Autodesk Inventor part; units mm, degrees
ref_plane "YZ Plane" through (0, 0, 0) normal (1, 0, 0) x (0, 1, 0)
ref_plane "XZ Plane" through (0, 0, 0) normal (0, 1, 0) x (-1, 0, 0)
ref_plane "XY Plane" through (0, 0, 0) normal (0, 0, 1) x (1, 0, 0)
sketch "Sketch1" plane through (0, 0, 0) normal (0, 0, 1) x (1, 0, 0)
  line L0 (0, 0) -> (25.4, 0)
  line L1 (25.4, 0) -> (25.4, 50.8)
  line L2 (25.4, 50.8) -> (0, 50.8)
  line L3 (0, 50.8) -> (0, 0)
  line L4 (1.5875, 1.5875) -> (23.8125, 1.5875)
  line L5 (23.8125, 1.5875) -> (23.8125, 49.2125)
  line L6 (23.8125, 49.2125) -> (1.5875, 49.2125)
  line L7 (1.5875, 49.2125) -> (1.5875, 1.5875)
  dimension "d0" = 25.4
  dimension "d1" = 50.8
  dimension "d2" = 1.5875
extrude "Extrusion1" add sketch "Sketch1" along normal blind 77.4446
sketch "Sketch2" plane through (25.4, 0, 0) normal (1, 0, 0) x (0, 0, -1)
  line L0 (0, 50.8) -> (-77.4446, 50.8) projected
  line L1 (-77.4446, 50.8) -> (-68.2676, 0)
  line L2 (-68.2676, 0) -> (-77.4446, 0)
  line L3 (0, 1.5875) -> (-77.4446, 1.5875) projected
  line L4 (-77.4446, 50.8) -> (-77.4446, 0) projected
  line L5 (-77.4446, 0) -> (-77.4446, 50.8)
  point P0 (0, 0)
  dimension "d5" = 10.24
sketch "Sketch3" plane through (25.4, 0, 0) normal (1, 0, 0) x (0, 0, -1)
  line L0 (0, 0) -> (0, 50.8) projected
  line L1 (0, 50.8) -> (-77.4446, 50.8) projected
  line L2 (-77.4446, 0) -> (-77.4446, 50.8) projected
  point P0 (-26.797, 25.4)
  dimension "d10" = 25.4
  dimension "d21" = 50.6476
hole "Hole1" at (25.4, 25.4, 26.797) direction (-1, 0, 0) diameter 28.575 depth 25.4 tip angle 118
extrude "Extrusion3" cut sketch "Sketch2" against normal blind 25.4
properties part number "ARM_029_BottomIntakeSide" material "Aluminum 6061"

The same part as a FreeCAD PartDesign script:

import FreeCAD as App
import Part
import Sketcher
from FreeCAD import Vector
Q = App.Units.Quantity

doc = App.newDocument("Part")
body = doc.addObject("PartDesign::Body", "Body")

sketch1 = body.newObject("Sketcher::SketchObject", "Sketch")
sketch1.AttachmentSupport = (doc.getObject("XY_Plane"), [""])
sketch1.MapMode = "FlatFace"
sketch1.addGeometry([
    Part.LineSegment(Vector(0, 51, 0), Vector(0, 0, 0)),
    Part.LineSegment(Vector(0, 0, 0), Vector(25, 0, 0)),
    Part.LineSegment(Vector(25, 0, 0), Vector(25, 51, 0)),
    Part.LineSegment(Vector(25, 51, 0), Vector(0, 51, 0)),
    Part.LineSegment(Vector(24, 2, 0), Vector(2, 2, 0)),
    Part.LineSegment(Vector(2, 2, 0), Vector(2, 49, 0)),
    Part.LineSegment(Vector(2, 49, 0), Vector(24, 49, 0)),
    Part.LineSegment(Vector(24, 49, 0), Vector(24, 2, 0)),
], False)
sketch1.addConstraint([
    Sketcher.Constraint("Coincident", 0, 2, 1, 1),
    Sketcher.Constraint("Coincident", 1, 2, 2, 1),
    Sketcher.Constraint("Coincident", 2, 2, 3, 1),
    Sketcher.Constraint("Coincident", 3, 2, 0, 1),
    Sketcher.Constraint("Coincident", 4, 2, 5, 1),
    Sketcher.Constraint("Coincident", 5, 2, 6, 1),
    Sketcher.Constraint("Coincident", 6, 2, 7, 1),
    Sketcher.Constraint("Coincident", 7, 2, 4, 1),
    Sketcher.Constraint("Vertical", 0),
    Sketcher.Constraint("Horizontal", 1),
    Sketcher.Constraint("Vertical", 2),
    Sketcher.Constraint("Horizontal", 3),
    Sketcher.Constraint("Horizontal", 4),
    Sketcher.Constraint("Vertical", 5),
    Sketcher.Constraint("Horizontal", 6),
    Sketcher.Constraint("Vertical", 7),
    Sketcher.Constraint("Coincident", 0, 2, -1, 1),
    Sketcher.Constraint("DistanceX", 1, 1, 1, 2, Q("1 in")),
    Sketcher.Constraint("DistanceY", 0, 2, 0, 1, Q("2 in")),
    Sketcher.Constraint("DistanceX", -1, 1, 4, 2, Q("0.0625 in")),
    Sketcher.Constraint("DistanceY", -1, 1, 4, 2, Q("0.0625 in")),
    Sketcher.Constraint("DistanceY", 5, 2, 3, 2, Q("0.0625 in")),
    Sketcher.Constraint("DistanceX", 6, 2, 2, 2, Q("0.0625 in")),
])
pad1 = body.newObject("PartDesign::Pad", "Pad")
pad1.Profile = sketch1
pad1.Length = Q("3.049 in")

sketch2 = body.newObject("Sketcher::SketchObject", "Sketch001")
sketch2.AttachmentSupport = (doc.getObject("YZ_Plane"), [""])
sketch2.MapMode = "FlatFace"
sketch2.AttachmentOffset = App.Placement(Vector(0, 0, 1 * 25.4), App.Rotation())
sketch2.addGeometry(Part.Circle(Vector(25, 27, 0), Vector(0, 0, 1), 14), False)
sketch2.addConstraint([
    Sketcher.Constraint("Diameter", 0, Q("1.125 in")),
    Sketcher.Constraint("DistanceX", -1, 1, 0, 3, Q("1 in")),
    Sketcher.Constraint("DistanceY", -1, 1, 0, 3, Q("1.055 in")),
])
doc.recompute()
hole = body.newObject("PartDesign::Hole", "Hole")
hole.Profile = sketch2
hole.ThreadType = "None"
hole.Diameter = Q("1.125 in")
hole.DepthType = "Dimension"
hole.Depth = Q("1 in")
hole.DrillPoint = "Angled"
hole.DrillPointAngle = 118

sketch3 = body.newObject("Sketcher::SketchObject", "Sketch002")
sketch3.AttachmentSupport = (doc.getObject("YZ_Plane"), [""])
sketch3.MapMode = "FlatFace"
sketch3.AttachmentOffset = App.Placement(Vector(0, 0, 1 * 25.4), App.Rotation())
sketch3.addGeometry([
    Part.LineSegment(Vector(51, 77, 0), Vector(0, 77, 0)),
    Part.LineSegment(Vector(0, 77, 0), Vector(0, 68, 0)),
    Part.LineSegment(Vector(0, 68, 0), Vector(51, 77, 0)),
], False)
sketch3.addConstraint([
    Sketcher.Constraint("Coincident", 0, 2, 1, 1),
    Sketcher.Constraint("Coincident", 1, 2, 2, 1),
    Sketcher.Constraint("Coincident", 2, 2, 0, 1),
    Sketcher.Constraint("Horizontal", 0),
    Sketcher.Constraint("Vertical", 1),
    Sketcher.Constraint("PointOnObject", 0, 2, -2),
    Sketcher.Constraint("DistanceX", 0, 2, 0, 1, Q("2 in")),
    Sketcher.Constraint("Angle", 2, Q("10.24 deg")),
    Sketcher.Constraint("DistanceY", -1, 1, 0, 2, Q("3.049 in")),
])
pocket1 = body.newObject("PartDesign::Pocket", "Pocket")
pocket1.Profile = sketch3
pocket1.Length = Q("1 in")

doc.recompute()
